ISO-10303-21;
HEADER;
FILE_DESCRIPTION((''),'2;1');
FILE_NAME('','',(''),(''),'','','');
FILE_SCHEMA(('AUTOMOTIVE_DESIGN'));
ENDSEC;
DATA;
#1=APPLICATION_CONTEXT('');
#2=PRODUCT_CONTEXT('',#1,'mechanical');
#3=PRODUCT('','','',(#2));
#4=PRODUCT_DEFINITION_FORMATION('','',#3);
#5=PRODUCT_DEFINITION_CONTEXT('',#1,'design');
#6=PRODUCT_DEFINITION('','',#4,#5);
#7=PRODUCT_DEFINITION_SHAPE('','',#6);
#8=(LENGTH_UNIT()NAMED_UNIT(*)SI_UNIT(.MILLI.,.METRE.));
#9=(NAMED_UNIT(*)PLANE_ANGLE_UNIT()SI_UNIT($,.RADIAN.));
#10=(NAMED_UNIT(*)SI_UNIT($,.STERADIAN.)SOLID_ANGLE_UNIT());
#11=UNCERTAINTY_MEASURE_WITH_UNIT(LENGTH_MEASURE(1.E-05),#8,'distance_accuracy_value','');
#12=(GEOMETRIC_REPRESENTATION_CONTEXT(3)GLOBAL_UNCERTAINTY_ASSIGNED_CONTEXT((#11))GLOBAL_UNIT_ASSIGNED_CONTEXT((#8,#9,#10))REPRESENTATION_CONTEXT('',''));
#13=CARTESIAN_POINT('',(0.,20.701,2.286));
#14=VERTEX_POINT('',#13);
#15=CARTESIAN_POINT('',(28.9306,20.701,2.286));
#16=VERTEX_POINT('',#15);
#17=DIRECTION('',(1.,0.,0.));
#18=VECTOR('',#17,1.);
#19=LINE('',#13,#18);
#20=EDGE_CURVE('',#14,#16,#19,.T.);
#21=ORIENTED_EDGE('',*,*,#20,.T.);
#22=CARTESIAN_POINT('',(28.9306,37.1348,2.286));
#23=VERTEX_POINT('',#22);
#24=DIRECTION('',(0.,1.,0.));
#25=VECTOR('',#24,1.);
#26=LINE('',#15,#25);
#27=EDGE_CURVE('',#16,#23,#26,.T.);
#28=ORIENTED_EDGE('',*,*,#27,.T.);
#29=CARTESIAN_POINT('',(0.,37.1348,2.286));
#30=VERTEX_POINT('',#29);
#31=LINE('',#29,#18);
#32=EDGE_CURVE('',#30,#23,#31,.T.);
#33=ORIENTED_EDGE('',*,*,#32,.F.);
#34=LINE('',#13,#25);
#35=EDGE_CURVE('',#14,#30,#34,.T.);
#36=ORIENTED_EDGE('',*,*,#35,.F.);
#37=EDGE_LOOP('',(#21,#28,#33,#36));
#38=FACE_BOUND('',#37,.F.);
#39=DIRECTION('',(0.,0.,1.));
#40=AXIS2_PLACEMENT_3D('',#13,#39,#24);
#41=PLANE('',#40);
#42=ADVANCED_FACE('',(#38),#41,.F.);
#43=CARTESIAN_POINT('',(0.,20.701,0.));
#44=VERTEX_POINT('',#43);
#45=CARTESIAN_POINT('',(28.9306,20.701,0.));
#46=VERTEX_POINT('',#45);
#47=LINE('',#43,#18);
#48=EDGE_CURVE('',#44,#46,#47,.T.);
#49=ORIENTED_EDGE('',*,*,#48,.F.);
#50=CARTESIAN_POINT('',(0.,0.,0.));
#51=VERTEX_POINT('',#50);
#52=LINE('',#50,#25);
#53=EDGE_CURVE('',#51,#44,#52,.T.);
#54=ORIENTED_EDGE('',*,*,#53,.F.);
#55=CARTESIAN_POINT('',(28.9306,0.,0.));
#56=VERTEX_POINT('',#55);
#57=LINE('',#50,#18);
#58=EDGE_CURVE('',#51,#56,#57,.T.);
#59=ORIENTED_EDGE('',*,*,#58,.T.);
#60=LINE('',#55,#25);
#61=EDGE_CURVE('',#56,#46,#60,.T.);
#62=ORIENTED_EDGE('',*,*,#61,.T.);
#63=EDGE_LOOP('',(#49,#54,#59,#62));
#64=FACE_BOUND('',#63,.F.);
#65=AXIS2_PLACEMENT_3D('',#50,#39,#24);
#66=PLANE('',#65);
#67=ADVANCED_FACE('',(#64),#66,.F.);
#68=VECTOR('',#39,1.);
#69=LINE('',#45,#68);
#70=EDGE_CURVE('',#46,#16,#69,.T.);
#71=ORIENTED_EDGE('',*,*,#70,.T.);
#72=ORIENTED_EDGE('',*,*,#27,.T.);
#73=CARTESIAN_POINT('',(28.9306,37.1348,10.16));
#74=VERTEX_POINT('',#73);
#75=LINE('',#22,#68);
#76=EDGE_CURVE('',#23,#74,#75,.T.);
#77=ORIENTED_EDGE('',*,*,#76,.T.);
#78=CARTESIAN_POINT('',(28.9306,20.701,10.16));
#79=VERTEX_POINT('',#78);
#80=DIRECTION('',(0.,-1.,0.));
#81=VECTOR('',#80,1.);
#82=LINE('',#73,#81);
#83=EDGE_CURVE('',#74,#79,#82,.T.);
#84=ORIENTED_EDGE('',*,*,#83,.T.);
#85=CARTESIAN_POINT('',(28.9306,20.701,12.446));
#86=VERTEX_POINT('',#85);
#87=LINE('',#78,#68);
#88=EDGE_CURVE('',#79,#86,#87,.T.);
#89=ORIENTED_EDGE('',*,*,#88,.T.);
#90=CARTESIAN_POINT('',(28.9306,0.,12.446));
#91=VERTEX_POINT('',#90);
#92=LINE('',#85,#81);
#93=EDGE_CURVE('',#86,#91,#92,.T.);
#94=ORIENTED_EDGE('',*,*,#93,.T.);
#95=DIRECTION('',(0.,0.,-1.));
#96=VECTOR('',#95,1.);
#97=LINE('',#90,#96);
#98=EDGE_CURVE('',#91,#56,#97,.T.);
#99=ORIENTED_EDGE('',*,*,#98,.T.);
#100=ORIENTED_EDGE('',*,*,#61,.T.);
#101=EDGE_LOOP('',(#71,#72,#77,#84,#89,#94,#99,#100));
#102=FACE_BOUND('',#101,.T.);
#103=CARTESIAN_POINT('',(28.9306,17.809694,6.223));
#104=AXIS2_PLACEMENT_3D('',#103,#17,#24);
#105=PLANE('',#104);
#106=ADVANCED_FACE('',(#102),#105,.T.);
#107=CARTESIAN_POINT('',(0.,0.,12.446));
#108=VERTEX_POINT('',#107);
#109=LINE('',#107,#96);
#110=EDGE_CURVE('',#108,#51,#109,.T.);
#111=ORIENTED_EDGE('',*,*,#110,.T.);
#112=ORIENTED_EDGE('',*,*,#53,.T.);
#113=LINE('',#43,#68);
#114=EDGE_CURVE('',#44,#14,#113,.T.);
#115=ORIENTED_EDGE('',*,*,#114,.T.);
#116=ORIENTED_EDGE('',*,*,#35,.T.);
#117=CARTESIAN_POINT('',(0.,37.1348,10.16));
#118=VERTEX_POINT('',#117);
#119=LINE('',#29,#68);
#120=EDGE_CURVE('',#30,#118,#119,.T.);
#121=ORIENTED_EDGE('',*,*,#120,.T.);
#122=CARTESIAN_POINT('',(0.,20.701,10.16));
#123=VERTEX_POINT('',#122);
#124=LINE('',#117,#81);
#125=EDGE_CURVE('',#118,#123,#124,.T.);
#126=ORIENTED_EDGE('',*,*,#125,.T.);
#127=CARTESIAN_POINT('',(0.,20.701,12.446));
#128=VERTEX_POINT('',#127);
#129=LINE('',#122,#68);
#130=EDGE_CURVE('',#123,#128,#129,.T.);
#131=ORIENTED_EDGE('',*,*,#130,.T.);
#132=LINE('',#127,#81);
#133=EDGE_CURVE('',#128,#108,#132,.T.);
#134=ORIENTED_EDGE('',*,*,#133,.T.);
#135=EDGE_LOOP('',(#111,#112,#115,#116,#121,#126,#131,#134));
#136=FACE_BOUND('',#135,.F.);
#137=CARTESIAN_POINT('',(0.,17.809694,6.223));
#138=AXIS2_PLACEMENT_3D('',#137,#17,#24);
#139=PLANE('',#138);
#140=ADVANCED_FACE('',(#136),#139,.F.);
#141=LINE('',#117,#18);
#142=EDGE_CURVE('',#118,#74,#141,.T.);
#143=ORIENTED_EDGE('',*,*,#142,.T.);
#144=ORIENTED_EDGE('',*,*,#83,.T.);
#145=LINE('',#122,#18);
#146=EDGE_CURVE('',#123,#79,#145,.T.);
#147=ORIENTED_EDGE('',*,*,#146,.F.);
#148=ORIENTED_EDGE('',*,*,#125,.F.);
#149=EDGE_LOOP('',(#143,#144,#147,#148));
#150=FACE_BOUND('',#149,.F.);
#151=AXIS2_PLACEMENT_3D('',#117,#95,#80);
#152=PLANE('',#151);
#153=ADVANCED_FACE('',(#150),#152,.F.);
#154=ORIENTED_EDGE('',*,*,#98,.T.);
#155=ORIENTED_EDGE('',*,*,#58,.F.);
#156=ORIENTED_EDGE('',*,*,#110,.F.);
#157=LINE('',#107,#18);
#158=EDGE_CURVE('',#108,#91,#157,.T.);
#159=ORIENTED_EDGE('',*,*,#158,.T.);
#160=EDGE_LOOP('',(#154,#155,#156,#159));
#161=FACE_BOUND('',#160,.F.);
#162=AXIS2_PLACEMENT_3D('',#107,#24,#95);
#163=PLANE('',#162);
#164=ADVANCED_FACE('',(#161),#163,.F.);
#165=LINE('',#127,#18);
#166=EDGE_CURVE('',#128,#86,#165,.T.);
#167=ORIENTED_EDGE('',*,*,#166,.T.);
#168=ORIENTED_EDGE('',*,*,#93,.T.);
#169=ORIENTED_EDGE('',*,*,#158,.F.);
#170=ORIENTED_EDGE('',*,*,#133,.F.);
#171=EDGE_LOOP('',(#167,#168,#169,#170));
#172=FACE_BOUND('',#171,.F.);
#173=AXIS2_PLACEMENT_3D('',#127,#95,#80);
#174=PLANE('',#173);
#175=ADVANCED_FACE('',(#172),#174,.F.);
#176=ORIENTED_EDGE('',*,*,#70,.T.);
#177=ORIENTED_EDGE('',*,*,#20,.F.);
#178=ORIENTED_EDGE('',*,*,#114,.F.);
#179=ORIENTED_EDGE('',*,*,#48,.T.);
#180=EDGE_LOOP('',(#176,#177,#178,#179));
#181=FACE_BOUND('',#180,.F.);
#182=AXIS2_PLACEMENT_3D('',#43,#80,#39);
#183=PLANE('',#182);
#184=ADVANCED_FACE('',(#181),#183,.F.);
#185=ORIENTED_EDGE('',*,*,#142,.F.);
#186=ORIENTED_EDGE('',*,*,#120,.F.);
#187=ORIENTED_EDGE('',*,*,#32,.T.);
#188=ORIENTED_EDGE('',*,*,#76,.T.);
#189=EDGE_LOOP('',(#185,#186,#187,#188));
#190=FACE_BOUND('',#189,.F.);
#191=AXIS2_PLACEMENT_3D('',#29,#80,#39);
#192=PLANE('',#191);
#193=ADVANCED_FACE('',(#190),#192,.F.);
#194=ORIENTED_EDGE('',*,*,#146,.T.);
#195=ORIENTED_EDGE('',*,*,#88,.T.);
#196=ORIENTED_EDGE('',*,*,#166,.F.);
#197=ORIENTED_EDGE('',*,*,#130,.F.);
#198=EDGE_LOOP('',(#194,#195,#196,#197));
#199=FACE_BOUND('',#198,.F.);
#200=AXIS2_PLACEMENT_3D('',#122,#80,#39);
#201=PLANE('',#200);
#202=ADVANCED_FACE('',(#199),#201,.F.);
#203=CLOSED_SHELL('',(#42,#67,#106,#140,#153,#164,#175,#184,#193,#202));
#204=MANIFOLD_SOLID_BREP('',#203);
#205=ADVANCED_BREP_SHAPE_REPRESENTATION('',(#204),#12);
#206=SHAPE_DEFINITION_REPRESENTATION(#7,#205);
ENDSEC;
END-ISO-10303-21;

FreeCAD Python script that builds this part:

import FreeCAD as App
import Part
import Sketcher
from FreeCAD import Vector
Q = App.Units.Quantity


def add_polygon(sketch, points):
    """Adds a closed chain of lines whose ends are joined by coincident constraints."""
    first, n = sketch.GeometryCount, len(points)
    for a, b in zip(points, points[1:] + points[:1]):
        sketch.addGeometry(Part.LineSegment(App.Vector(*a, 0), App.Vector(*b, 0)), False)
    for i in range(n):
        sketch.addConstraint(Sketcher.Constraint("Coincident", first + i, 2, first + (i + 1) % n, 1))

doc = App.newDocument("Part")
body = doc.addObject("PartDesign::Body", "Body")

sketch1 = doc.addObject("Sketcher::SketchObject", "Sketch")
body.addObject(sketch1)
sketch1.AttachmentSupport = (doc.YZ_Plane, [""])
sketch1.MapMode = "FlatFace"
add_polygon(sketch1, [(0, 12.4), (0, 0), (20.7, 0), (20.7, 2.3), (37.1, 2.3), (37.1, 10.2), (20.7, 10.2), (20.7, 12.4)])
sketch1.addConstraint([
    Sketcher.Constraint("Vertical", 0),
    Sketcher.Constraint("Horizontal", 1),
    Sketcher.Constraint("Vertical", 2),
    Sketcher.Constraint("Horizontal", 3),
    Sketcher.Constraint("Vertical", 4),
    Sketcher.Constraint("Horizontal", 5),
    Sketcher.Constraint("Vertical", 6),
    Sketcher.Constraint("Horizontal", 7),
    Sketcher.Constraint("Coincident", 0, 2, -1, 1),
    Sketcher.Constraint("Vertical", 2, 2, 5, 2),
    Sketcher.Constraint("Equal", 2, 6),
    Sketcher.Constraint("DistanceY", 0, 2, 0, 1, Q("0.49 in")),
    Sketcher.Constraint("DistanceY", 2, 1, 2, 2, Q("0.09 in")),
    Sketcher.Constraint("DistanceX", 1, 1, 1, 2, Q("0.815 in")),
    Sketcher.Constraint("DistanceX", 3, 1, 3, 2, Q("0.647 in")),
])
pad1 = doc.addObject("PartDesign::Pad", "Pad")
body.addObject(pad1)
pad1.Profile = sketch1
pad1.Length = Q("1.139 in")

doc.recompute()
